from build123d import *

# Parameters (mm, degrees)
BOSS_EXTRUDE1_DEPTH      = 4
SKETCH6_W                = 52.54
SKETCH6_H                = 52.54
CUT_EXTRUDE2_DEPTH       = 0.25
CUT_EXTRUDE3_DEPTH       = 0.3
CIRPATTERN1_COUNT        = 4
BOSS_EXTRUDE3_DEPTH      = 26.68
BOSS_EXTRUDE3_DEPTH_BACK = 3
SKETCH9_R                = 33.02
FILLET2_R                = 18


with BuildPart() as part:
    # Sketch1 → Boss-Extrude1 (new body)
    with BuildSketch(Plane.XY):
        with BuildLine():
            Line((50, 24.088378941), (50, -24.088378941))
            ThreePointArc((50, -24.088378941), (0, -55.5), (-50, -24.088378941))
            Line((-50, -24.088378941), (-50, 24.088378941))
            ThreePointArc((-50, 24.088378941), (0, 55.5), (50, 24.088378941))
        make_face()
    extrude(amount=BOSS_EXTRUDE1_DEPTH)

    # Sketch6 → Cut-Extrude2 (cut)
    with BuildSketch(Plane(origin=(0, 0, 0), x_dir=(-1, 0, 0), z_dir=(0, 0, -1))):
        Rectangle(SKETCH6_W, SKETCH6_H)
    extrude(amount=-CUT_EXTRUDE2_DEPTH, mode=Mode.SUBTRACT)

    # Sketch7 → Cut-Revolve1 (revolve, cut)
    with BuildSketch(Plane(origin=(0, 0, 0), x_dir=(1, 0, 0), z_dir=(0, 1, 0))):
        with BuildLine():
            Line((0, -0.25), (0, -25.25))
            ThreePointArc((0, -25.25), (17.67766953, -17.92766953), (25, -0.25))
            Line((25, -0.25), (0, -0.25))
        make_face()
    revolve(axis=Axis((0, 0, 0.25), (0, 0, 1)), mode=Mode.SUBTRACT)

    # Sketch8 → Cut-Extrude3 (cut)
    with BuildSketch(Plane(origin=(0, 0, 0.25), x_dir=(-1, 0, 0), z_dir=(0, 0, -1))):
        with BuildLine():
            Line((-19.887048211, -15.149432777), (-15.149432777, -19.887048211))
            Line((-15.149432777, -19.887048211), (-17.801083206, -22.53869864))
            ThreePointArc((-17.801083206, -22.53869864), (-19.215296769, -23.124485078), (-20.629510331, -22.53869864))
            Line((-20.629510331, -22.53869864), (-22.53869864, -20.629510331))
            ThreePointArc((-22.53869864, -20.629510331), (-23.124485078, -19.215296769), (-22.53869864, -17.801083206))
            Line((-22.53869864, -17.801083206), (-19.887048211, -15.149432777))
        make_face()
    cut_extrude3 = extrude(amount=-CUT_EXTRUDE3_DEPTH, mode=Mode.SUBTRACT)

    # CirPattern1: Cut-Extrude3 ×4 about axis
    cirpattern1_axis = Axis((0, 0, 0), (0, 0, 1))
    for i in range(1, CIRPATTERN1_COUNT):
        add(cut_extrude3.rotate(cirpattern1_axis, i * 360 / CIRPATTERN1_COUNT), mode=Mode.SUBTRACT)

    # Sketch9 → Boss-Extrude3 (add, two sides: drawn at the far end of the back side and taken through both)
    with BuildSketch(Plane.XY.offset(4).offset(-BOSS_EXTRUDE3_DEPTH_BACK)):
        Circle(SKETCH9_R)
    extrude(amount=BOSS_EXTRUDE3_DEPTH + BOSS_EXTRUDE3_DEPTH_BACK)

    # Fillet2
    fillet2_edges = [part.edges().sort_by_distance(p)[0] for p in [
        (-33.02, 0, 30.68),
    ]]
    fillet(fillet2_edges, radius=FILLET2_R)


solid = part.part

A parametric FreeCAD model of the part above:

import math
import FreeCAD as App
import Part
import Sketcher

V = App.Vector


def edges_at(feature, points):
    """Names of the edges that pass closest to the given points."""
    edges = feature.Shape.Edges
    near = lambda p: min(range(len(edges)), key=lambda i: edges[i].distToShape(Part.Vertex(*p))[0])
    return sorted({f"Edge{near(p) + 1}" for p in points})

doc = App.newDocument("Part")
body = doc.addObject("PartDesign::Body", "Body")

sketch1 = body.newObject("Sketcher::SketchObject", "Sketch")
sketch1.AttachmentSupport = (doc.getObject("XY_Plane"), [""])
sketch1.MapMode = "FlatFace"
sketch1.addGeometry([
    Part.LineSegment(V(50, -24, 0), V(50, 24, 0)),
    Part.ArcOfCircle(Part.Circle(V(0, 0, 0), V(0, 0, 1), 56), math.radians(26), math.radians(154)),
    Part.LineSegment(V(-50, 24, 0), V(-50, -24, 0)),
    Part.ArcOfCircle(Part.Circle(V(0, 0, 0), V(0, 0, 1), 56), math.radians(-154), math.radians(-26)),
], False)
sketch1.addConstraint([
    Sketcher.Constraint("Coincident", 0, 2, 1, 1),
    Sketcher.Constraint("Coincident", 1, 2, 2, 1),
    Sketcher.Constraint("Coincident", 2, 2, 3, 1),
    Sketcher.Constraint("Coincident", 3, 2, 0, 1),
    Sketcher.Constraint("Vertical", 0),
    Sketcher.Constraint("Vertical", 2),
    Sketcher.Constraint("Coincident", 1, 3, -1, 1),
    Sketcher.Constraint("Coincident", 3, 3, -1, 1),
    Sketcher.Constraint("Equal", 1, 3),
    Sketcher.Constraint("Horizontal", 0, 2, 1, 2),
    Sketcher.Constraint("Radius", 1, 55.5),
    Sketcher.Constraint("DistanceX", -1, 1, 0, 2, 50.0),
])
pad1 = body.newObject("PartDesign::Pad", "Pad")
pad1.Profile = sketch1
pad1.Length = 4

sketch2 = body.newObject("Sketcher::SketchObject", "Sketch001")
sketch2.AttachmentSupport = (doc.getObject("XY_Plane"), [""])
sketch2.MapMode = "FlatFace"
sketch2.addGeometry([
    Part.LineSegment(V(26, 26, 0), V(26, -26, 0)),
    Part.LineSegment(V(26, -26, 0), V(-26, -26, 0)),
    Part.LineSegment(V(-26, -26, 0), V(-26, 26, 0)),
    Part.LineSegment(V(-26, 26, 0), V(26, 26, 0)),
], False)
sketch2.addConstraint([
    Sketcher.Constraint("Coincident", 0, 2, 1, 1),
    Sketcher.Constraint("Coincident", 1, 2, 2, 1),
    Sketcher.Constraint("Coincident", 2, 2, 3, 1),
    Sketcher.Constraint("Coincident", 3, 2, 0, 1),
    Sketcher.Constraint("Vertical", 0),
    Sketcher.Constraint("Horizontal", 1),
    Sketcher.Constraint("Vertical", 2),
    Sketcher.Constraint("Horizontal", 3),
    Sketcher.Constraint("Symmetric", 0, 2, 2, 2, -1, 1),
    Sketcher.Constraint("Equal", 3, 0),
    Sketcher.Constraint("DistanceX", 1, 2, 1, 1, 52.54),
])
pocket1 = body.newObject("PartDesign::Pocket", "Pocket")
pocket1.Profile = sketch2
pocket1.Length = 0.25
pocket1.Reversed = True

sketch3 = body.newObject("Sketcher::SketchObject", "Sketch002")
sketch3.AttachmentSupport = (doc.getObject("XZ_Plane"), [""])
sketch3.MapMode = "FlatFace"
sketch3.addGeometry([
    Part.LineSegment(V(0, 0, 0), V(0, 25, 0)),
    Part.ArcOfCircle(Part.Circle(V(0, 0, 0), V(0, 0, 1), 25), math.radians(0), math.radians(90)),
    Part.LineSegment(V(25, 0, 0), V(0, 0, 0)),
], False)
sketch3.addConstraint([
    Sketcher.Constraint("Coincident", 0, 2, 1, 2),
    Sketcher.Constraint("Coincident", 1, 1, 2, 1),
    Sketcher.Constraint("Coincident", 2, 2, 0, 1),
    Sketcher.Constraint("Vertical", 0),
    Sketcher.Constraint("Horizontal", 2),
    Sketcher.Constraint("Coincident", 2, 2, 1, 3),
    Sketcher.Constraint("PointOnObject", 1, 3, -2),
    Sketcher.Constraint("Radius", 1, 25.0),
    Sketcher.Constraint("DistanceY", -1, 1, 1, 3, 0.25),
])
groove = body.newObject("PartDesign::Groove", "Groove")
groove.Profile = sketch3
groove.ReferenceAxis = (sketch3, ["V_Axis"])
groove.Angle = 360

sketch4 = body.newObject("Sketcher::SketchObject", "Sketch003")
sketch4.AttachmentSupport = (doc.getObject("XY_Plane"), [""])
sketch4.MapMode = "FlatFace"
sketch4.AttachmentOffset = App.Placement(V(0, 0, 0.25), App.Rotation())
sketch4.addGeometry([
    Part.LineSegment(V(15.1, -19.9, 0), V(19.9, -15.1, 0)),
    Part.LineSegment(V(19.9, -15.1, 0), V(22.5, -17.8, 0)),
    Part.ArcOfCircle(Part.Circle(V(21.1, -19.2, 0), V(0, 0, 1), 2), math.radians(-45), math.radians(45)),
    Part.LineSegment(V(22.5, -20.6, 0), V(20.6, -22.5, 0)),
    Part.ArcOfCircle(Part.Circle(V(19.2, -21.1, 0), V(0, 0, 1), 2), math.radians(-135), math.radians(-45)),
    Part.LineSegment(V(17.8, -22.5, 0), V(15.1, -19.9, 0)),
], False)
sketch4.addConstraint([
    Sketcher.Constraint("Coincident", 0, 2, 1, 1),
    Sketcher.Constraint("Tangent", 1, 2, 2, 2),
    Sketcher.Constraint("Tangent", 2, 1, 3, 1),
    Sketcher.Constraint("Tangent", 3, 2, 4, 2),
    Sketcher.Constraint("Tangent", 4, 1, 5, 1),
    Sketcher.Constraint("Coincident", 5, 2, 0, 1),
    Sketcher.Constraint("Equal", 2, 4),
    Sketcher.Constraint("Perpendicular", 0, 1),
    Sketcher.Constraint("Perpendicular", 1, 3),
    Sketcher.Constraint("Perpendicular", 3, 5),
    Sketcher.Constraint("Horizontal", 3, 2, 4, 1),
    Sketcher.Constraint("Radius", 2, 2.0),
    Sketcher.Constraint("Distance", 0, 6.7),
    Sketcher.Constraint("Distance", 1, 3.75),
    Sketcher.Constraint("DistanceX", -1, 1, 1, 2, 22.538699),
    Sketcher.Constraint("DistanceY", 3, 2, -1, 1, 22.538699),
])
pocket2 = body.newObject("PartDesign::Pocket", "Pocket001")
pocket2.Profile = sketch4
pocket2.Length = 0.3
pocket2.Reversed = True
doc.recompute()

polarpattern = body.newObject("PartDesign::PolarPattern", "PolarPattern")
polarpattern.Originals = [pocket2]
polarpattern.Axis = (doc.getObject("Z_Axis"), [""])
polarpattern.Angle = 360
polarpattern.Occurrences = 4
body.Tip = polarpattern

sketch5 = body.newObject("Sketcher::SketchObject", "Sketch004")
sketch5.AttachmentSupport = (doc.getObject("XY_Plane"), [""])
sketch5.MapMode = "FlatFace"
sketch5.AttachmentOffset = App.Placement(V(0, 0, 4), App.Rotation())
sketch5.addGeometry(Part.Circle(V(0, 0, 0), V(0, 0, 1), 33), False)
sketch5.addConstraint([
    Sketcher.Constraint("Coincident", 0, 3, -1, 1),
    Sketcher.Constraint("Diameter", 0, 66.04),
])
pad2 = body.newObject("PartDesign::Pad", "Pad001")
pad2.Profile = sketch5
pad2.Type = "TwoLengths"
pad2.Length = 26.68
pad2.Length2 = 3
doc.recompute()

fillet = body.newObject("PartDesign::Fillet", "Fillet")
fillet.Base = (pad2, edges_at(pad2, [(-33.02, 0, 30.68)]))
fillet.Radius = 18

doc.recompute()
